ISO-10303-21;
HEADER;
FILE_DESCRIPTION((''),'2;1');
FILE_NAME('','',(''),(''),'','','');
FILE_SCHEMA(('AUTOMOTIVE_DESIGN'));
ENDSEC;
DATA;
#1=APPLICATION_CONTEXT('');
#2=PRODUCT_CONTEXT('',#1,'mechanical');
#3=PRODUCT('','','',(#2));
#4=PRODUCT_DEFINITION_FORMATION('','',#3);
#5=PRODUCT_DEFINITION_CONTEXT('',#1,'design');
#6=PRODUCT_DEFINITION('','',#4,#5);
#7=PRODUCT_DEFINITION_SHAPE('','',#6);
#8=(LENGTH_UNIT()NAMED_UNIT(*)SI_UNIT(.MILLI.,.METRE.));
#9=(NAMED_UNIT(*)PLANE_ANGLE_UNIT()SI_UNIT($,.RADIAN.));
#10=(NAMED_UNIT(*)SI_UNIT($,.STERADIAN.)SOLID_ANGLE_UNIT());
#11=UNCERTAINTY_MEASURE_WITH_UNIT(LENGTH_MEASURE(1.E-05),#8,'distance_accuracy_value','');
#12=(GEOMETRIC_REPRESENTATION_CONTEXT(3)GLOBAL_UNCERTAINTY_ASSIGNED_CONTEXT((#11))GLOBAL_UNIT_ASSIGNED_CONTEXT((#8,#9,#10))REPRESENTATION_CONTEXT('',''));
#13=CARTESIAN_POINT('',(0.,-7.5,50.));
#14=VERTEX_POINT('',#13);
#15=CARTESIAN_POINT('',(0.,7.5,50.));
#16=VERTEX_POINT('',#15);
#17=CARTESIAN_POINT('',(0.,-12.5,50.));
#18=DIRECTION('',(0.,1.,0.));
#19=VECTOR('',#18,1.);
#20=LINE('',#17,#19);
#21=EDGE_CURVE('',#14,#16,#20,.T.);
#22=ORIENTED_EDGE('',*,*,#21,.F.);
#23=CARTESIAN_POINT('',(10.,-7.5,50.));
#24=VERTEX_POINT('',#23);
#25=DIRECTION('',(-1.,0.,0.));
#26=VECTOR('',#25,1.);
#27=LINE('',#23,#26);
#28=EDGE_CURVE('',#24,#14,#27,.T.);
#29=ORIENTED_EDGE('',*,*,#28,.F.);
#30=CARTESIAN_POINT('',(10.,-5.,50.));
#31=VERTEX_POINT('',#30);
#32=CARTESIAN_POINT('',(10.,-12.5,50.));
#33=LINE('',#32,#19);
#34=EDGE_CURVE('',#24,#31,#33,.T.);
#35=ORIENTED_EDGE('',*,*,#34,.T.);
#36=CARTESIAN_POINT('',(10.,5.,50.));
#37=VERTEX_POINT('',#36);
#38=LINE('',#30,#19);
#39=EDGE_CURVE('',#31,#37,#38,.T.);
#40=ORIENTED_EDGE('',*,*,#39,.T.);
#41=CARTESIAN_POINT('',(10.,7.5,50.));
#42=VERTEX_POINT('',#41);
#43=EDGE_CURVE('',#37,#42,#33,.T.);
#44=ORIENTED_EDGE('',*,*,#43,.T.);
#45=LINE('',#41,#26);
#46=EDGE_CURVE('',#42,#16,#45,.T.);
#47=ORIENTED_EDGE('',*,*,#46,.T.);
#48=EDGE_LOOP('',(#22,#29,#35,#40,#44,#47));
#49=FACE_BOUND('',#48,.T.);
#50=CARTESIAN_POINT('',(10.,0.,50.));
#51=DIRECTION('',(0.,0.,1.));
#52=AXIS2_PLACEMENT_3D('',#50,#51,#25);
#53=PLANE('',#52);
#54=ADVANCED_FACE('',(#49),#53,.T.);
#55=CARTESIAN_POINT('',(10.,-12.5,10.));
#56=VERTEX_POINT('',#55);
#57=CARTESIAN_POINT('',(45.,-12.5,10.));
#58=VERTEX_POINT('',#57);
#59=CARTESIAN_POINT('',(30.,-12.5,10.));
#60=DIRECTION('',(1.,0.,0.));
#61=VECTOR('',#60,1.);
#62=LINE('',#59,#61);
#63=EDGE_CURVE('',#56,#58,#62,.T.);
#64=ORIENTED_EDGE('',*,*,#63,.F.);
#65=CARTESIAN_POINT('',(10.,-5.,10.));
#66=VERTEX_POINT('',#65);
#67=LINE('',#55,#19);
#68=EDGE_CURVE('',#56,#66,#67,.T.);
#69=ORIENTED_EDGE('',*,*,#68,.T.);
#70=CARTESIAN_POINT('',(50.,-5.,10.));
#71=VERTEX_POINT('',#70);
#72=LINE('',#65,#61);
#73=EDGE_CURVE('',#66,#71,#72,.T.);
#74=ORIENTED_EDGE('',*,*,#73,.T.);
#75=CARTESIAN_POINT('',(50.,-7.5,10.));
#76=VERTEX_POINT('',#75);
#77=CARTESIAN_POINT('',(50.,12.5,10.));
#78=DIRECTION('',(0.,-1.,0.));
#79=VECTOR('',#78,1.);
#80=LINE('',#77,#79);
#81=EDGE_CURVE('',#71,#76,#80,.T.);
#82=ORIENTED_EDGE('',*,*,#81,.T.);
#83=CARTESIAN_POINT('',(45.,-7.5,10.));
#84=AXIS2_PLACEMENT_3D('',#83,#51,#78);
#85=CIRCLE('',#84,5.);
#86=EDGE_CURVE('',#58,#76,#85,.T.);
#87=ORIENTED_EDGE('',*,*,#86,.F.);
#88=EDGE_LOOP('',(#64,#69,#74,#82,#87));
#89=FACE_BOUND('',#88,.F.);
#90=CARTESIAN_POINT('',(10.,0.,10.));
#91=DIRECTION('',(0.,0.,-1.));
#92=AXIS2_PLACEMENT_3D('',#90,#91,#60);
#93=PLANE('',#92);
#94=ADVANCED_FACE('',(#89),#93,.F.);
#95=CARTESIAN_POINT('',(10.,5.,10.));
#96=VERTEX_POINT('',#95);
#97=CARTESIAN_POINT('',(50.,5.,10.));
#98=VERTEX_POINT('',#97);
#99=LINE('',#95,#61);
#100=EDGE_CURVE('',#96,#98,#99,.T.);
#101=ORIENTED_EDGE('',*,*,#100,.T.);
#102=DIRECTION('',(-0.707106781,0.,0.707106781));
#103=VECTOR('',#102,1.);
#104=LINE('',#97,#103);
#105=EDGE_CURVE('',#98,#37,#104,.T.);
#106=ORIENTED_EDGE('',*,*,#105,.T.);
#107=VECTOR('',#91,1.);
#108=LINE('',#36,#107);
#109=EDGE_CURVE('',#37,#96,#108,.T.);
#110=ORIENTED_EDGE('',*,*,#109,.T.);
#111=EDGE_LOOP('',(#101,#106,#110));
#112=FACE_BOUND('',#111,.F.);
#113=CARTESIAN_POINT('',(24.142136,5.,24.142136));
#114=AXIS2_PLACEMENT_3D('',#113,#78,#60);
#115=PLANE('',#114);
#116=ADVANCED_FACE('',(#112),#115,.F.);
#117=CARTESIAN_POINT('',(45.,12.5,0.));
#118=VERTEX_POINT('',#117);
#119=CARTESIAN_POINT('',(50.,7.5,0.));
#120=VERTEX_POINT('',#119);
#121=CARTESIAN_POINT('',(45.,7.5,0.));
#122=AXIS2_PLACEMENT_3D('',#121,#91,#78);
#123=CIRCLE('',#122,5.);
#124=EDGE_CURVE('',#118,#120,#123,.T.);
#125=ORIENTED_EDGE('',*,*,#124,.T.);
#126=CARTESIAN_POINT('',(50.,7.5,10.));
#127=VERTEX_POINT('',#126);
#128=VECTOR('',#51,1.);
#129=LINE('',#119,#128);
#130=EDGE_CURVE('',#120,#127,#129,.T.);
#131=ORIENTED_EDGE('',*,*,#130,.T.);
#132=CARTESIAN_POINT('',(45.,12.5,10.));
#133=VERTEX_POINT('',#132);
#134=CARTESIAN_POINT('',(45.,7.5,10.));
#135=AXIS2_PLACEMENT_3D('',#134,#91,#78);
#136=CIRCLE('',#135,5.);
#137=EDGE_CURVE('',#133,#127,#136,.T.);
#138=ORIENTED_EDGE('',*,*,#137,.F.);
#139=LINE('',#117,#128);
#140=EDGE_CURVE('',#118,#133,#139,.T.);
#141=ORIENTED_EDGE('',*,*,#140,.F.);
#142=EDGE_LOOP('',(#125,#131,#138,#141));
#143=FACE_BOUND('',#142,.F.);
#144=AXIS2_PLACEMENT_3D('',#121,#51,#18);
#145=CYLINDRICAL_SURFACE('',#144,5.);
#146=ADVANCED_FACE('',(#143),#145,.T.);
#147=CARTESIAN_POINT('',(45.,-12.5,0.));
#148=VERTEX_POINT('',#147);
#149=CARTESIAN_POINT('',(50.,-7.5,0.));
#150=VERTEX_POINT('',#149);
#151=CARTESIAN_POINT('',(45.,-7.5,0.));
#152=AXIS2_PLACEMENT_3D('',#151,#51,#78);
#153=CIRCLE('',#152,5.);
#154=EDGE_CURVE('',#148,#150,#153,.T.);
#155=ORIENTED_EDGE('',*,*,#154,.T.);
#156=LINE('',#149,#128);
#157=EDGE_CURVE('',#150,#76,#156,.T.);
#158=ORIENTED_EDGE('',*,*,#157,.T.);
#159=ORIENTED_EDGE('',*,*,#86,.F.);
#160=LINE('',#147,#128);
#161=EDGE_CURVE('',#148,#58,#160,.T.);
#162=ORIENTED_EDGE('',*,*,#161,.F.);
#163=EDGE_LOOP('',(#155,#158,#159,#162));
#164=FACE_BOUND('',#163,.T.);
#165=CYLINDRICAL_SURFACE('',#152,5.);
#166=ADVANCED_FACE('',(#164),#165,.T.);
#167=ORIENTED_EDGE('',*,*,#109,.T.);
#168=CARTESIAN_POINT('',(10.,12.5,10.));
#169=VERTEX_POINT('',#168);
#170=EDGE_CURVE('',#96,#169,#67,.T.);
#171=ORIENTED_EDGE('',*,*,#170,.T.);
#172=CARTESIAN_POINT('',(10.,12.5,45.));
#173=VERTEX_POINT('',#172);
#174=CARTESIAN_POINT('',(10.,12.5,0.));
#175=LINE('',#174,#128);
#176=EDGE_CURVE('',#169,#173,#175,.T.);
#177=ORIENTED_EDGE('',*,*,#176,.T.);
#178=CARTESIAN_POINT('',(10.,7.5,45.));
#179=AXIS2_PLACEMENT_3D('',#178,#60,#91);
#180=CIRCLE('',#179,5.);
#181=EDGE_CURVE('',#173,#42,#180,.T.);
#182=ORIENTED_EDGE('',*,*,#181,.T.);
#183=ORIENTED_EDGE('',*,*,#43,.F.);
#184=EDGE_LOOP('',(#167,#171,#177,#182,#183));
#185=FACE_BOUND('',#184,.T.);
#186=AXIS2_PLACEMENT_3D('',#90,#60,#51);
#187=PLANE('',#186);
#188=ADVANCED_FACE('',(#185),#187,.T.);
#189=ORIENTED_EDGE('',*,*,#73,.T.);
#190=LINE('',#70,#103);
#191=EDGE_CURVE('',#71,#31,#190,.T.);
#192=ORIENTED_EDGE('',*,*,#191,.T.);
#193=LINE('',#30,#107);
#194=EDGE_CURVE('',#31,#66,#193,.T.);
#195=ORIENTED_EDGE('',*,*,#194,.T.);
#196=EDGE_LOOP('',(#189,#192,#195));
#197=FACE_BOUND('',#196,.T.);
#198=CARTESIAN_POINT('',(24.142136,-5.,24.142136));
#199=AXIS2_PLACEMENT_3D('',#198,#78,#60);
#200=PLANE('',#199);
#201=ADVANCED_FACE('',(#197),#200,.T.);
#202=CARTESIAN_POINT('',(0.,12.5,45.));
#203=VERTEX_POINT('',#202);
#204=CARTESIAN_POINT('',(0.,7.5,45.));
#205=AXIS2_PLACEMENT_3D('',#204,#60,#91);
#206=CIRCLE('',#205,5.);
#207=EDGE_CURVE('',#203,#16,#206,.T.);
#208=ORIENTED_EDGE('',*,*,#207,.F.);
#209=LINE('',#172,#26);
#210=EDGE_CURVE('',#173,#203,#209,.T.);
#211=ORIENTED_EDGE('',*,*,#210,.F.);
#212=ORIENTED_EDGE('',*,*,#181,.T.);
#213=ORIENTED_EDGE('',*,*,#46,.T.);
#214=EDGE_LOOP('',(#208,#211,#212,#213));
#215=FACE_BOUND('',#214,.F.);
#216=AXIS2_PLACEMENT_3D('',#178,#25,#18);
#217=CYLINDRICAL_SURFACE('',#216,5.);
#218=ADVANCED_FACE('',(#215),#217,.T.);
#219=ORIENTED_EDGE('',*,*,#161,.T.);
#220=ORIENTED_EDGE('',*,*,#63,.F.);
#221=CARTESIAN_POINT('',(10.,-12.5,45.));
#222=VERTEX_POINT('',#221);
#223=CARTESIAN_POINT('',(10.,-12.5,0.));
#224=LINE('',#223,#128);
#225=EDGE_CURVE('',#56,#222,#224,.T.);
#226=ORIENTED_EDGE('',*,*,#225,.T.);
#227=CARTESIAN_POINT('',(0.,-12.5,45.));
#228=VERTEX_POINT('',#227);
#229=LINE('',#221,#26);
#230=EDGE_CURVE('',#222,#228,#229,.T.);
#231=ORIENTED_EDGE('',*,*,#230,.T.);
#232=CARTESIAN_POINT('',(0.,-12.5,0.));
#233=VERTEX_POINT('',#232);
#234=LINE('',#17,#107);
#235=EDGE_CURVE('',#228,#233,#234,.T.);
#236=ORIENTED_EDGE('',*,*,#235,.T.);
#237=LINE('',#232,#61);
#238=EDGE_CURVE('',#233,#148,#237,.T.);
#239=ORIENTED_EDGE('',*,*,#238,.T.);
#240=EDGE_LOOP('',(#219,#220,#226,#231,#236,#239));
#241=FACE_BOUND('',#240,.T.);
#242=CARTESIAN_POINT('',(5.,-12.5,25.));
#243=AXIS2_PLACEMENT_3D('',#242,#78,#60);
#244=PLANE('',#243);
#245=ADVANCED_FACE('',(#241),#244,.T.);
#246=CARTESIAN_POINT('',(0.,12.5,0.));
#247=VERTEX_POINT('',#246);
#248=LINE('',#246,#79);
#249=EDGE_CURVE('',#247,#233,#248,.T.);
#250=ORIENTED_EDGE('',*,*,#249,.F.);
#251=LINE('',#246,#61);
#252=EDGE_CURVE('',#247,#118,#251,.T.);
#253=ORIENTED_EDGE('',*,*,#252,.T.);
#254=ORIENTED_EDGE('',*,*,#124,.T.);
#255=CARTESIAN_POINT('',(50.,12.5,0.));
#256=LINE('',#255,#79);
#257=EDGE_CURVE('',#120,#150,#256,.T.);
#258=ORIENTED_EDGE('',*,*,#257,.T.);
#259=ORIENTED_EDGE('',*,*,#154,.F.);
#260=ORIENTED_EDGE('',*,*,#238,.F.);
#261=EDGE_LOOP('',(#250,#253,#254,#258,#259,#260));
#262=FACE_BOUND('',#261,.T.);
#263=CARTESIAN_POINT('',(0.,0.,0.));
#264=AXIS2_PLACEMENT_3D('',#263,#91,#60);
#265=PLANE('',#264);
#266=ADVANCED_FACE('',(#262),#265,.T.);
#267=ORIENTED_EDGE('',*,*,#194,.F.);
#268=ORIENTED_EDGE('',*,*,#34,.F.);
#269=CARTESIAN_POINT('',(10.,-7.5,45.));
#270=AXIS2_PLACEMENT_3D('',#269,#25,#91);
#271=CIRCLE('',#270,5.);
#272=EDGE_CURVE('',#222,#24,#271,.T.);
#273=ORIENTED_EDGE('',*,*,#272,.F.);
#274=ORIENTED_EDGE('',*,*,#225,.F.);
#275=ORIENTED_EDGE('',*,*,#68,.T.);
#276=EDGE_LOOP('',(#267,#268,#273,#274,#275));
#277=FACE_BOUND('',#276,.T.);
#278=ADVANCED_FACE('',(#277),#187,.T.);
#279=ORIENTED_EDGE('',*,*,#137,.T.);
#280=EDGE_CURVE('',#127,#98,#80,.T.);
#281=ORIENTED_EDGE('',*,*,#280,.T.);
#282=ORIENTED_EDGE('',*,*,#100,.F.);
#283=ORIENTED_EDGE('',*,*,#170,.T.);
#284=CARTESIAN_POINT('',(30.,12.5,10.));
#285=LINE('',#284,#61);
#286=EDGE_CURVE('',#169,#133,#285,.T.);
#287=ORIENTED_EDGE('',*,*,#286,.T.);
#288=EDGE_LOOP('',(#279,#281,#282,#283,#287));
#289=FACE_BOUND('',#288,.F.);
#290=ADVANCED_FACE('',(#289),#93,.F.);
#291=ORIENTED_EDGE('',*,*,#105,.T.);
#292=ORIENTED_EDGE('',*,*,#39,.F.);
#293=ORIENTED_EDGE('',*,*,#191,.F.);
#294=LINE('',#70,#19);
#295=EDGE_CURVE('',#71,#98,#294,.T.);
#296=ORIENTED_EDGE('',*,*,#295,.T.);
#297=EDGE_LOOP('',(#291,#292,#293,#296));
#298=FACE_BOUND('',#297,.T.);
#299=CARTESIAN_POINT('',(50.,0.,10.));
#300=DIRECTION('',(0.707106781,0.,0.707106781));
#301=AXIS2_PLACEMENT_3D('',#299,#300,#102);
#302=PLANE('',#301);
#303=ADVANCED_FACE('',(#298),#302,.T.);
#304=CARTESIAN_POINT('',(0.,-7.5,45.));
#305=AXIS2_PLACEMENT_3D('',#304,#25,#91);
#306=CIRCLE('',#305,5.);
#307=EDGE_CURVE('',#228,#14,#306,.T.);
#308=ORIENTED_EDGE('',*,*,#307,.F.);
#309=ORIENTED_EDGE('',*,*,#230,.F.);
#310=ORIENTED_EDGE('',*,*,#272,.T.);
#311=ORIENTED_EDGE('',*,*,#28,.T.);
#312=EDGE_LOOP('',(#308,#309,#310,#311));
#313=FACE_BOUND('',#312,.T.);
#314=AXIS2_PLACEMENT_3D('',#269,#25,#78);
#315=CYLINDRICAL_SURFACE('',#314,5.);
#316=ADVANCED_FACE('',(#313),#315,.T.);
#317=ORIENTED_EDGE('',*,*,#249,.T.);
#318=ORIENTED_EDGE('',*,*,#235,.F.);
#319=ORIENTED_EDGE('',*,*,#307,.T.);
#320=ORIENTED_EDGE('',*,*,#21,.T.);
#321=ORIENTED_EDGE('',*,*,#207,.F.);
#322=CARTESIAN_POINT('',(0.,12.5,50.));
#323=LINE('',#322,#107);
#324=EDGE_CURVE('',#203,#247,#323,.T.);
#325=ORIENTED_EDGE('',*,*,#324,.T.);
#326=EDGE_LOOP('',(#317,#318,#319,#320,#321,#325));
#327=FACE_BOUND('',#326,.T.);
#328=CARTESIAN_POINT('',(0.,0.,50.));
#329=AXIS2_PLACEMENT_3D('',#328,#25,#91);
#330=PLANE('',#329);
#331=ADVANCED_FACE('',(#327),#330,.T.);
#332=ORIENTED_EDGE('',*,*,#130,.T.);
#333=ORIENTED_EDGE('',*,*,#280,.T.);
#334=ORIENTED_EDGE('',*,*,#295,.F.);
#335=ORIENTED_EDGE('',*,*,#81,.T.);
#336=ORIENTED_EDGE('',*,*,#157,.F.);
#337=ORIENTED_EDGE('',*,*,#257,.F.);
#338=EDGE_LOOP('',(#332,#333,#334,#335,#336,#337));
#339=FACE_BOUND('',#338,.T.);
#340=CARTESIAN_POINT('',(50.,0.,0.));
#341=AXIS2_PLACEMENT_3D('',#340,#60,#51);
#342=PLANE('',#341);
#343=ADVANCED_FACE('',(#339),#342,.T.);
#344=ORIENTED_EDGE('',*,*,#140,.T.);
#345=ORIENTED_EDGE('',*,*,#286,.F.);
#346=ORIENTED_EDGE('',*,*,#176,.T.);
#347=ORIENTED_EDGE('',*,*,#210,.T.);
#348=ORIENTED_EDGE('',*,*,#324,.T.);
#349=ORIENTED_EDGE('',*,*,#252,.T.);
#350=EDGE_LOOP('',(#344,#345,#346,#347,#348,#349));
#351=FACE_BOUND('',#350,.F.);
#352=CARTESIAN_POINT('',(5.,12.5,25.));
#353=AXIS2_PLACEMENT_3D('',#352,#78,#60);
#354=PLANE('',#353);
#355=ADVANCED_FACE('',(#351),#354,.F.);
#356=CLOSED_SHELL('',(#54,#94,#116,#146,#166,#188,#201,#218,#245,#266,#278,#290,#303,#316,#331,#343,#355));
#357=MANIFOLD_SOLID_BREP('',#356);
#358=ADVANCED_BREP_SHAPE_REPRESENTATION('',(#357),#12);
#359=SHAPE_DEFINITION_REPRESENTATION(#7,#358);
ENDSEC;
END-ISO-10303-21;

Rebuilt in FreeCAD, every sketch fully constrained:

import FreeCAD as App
import Part
import Sketcher

V = App.Vector
Q = App.Units.Quantity


def edges_at(feature, points):
    """Names of the edges that pass closest to the given points."""
    edges = feature.Shape.Edges
    near = lambda p: min(range(len(edges)), key=lambda i: edges[i].distToShape(Part.Vertex(*p))[0])
    return sorted({f"Edge{near(p) + 1}" for p in points})

doc = App.newDocument("Part")
params = doc.addObject("Spreadsheet::Sheet", "Params")
for row, (alias, value) in enumerate([
    ("sketch1_width", "50 mm"),
    ("sketch1_width2", "40 mm"),
    ("pad1_length", "25 mm"),
    ("sketch2_width", "40 mm"),
    ("pad2_length", "10 mm"),
    ("fillet_radius", "5 mm"),
], start=1):
    params.set(f"A{row}", alias)
    params.set(f"B{row}", "=" + value)
    params.setAlias(f"B{row}", alias)

body = doc.addObject("PartDesign::Body", "Body")

# Sketch on XZ plane
sketch1 = body.newObject("Sketcher::SketchObject", "Sketch")
sketch1.AttachmentSupport = (doc.getObject("XZ_Plane"), [""])
sketch1.MapMode = "FlatFace"
sketch1.addGeometry([
    Part.LineSegment(V(0, 50, 0), V(0, 0, 0)),  # 0
    Part.LineSegment(V(0, 0, 0), V(50, 0, 0)),  # 1
    Part.LineSegment(V(50, 0, 0), V(50, 10, 0)),  # 2
    Part.LineSegment(V(50, 10, 0), V(10, 10, 0)),  # 3
    Part.LineSegment(V(10, 10, 0), V(10, 50, 0)),  # 4
    Part.LineSegment(V(10, 50, 0), V(0, 50, 0)),  # 5
], False)
sketch1.addConstraint([
    Sketcher.Constraint("Coincident", 0, 2, 1, 1),
    Sketcher.Constraint("Coincident", 1, 2, 2, 1),
    Sketcher.Constraint("Coincident", 2, 2, 3, 1),
    Sketcher.Constraint("Coincident", 3, 2, 4, 1),
    Sketcher.Constraint("Coincident", 4, 2, 5, 1),
    Sketcher.Constraint("Coincident", 5, 2, 0, 1),
    Sketcher.Constraint("Vertical", 0),
    Sketcher.Constraint("Horizontal", 1),
    Sketcher.Constraint("Vertical", 2),
    Sketcher.Constraint("Horizontal", 3),
    Sketcher.Constraint("Vertical", 4),
    Sketcher.Constraint("Horizontal", 5),
    Sketcher.Constraint("Coincident", 0, 2, -1, 1),
    Sketcher.Constraint("Equal", 1, 0),
    Sketcher.Constraint("Equal", 5, 2),
    Sketcher.Constraint("DistanceX", 1, 1, 1, 2, Q("50 mm")),
    Sketcher.Constraint("DistanceX", 3, 2, 3, 1, Q("40 mm")),
])
sketch1.setExpression("Constraints[15]", "Params.sketch1_width")
sketch1.setExpression("Constraints[16]", "Params.sketch1_width2")
pad1 = body.newObject("PartDesign::Pad", "Pad")
pad1.Profile = sketch1
pad1.setExpression("Length", "Params.pad1_length")
pad1.Midplane = True

# Sketch on XZ plane
sketch2 = body.newObject("Sketcher::SketchObject", "Sketch001")
sketch2.AttachmentSupport = (doc.getObject("XZ_Plane"), [""])
sketch2.MapMode = "FlatFace"
sketch2.addGeometry([
    Part.LineSegment(V(10, 50, 0), V(10, 10, 0)),
    Part.LineSegment(V(10, 10, 0), V(50, 10, 0)),
    Part.LineSegment(V(50, 10, 0), V(10, 50, 0)),
], False)
sketch2.addConstraint([
    Sketcher.Constraint("Coincident", 0, 2, 1, 1),
    Sketcher.Constraint("Coincident", 1, 2, 2, 1),
    Sketcher.Constraint("Coincident", 2, 2, 0, 1),
    Sketcher.Constraint("Vertical", 0),
    Sketcher.Constraint("Horizontal", 1),
    Sketcher.Constraint("Equal", 1, 0),
    Sketcher.Constraint("DistanceX", 1, 1, 1, 2, Q("40 mm")),
    Sketcher.Constraint("DistanceX", -1, 1, 0, 2, Q("10 mm")),
    Sketcher.Constraint("DistanceY", -1, 1, 0, 2, Q("10 mm")),
])
sketch2.setExpression("Constraints[6]", "Params.sketch2_width")
pad2 = body.newObject("PartDesign::Pad", "Pad001")
pad2.Profile = sketch2
pad2.setExpression("Length", "Params.pad2_length")
pad2.Midplane = True
doc.recompute()

fillet = body.newObject("PartDesign::Fillet", "Fillet")
fillet.Base = (pad2, edges_at(pad2, [
    (50, -12.5, 5),
    (50, 12.5, 5),
    (5, 12.5, 50),
    (5, -12.5, 50),
]))
fillet.setExpression("Radius", "Params.fillet_radius")

doc.recompute()
